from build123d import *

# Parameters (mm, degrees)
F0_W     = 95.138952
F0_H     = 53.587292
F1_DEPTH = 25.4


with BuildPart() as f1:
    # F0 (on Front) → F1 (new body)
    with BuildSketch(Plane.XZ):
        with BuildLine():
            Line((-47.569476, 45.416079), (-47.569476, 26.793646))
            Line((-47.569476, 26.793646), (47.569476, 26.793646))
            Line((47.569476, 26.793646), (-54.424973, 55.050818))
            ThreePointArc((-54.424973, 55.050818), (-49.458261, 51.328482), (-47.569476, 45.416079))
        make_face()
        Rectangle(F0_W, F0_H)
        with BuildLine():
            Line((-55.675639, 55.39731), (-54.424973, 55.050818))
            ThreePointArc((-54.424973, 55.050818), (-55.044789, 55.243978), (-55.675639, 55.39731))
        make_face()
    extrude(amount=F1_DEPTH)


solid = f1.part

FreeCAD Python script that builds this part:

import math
import FreeCAD as App
import Part
import Sketcher
Q = App.Units.Quantity

doc = App.newDocument("Part")
body = doc.addObject("PartDesign::Body", "Body")
body.AllowCompound = True

sketch1 = body.newObject("Sketcher::SketchObject", "Sketch")
sketch1.AttachmentSupport = (doc.getObject("XZ_Plane"), [""])
sketch1.MapMode = "FlatFace"
sketch1.addGeometry([
    Part.LineSegment(App.Vector(-47.569476, 45.416079, 0), App.Vector(-47.569476, -26.793646, 0)),
    Part.LineSegment(App.Vector(-47.569476, -26.793646, 0), App.Vector(47.569476, -26.793646, 0)),
    Part.LineSegment(App.Vector(47.569476, -26.793646, 0), App.Vector(47.569476, 26.793646, 0)),
    Part.LineSegment(App.Vector(47.569476, 26.793646, 0), App.Vector(-54.424973, 55.050818, 0)),
    Part.ArcOfCircle(Part.Circle(App.Vector(-57.767573, 45.416078, 0), App.Vector(0, 0, 1), 10.198097), math.radians(0.000003), math.radians(70.866701)),
    Part.LineSegment(App.Vector(-55.675639, 55.39731, 0), App.Vector(-54.424973, 55.050818, 0)),
    Part.ArcOfCircle(Part.Circle(App.Vector(-57.767658, 45.415757, 0), App.Vector(0, 0, 1), 10.198429), math.radians(70.866841), math.radians(78.162802)),
], False)
sketch1.addConstraint([
    Sketcher.Constraint("Coincident", 0, 2, 1, 1),
    Sketcher.Constraint("Coincident", 1, 2, 2, 1),
    Sketcher.Constraint("Coincident", 2, 2, 3, 1),
    Sketcher.Constraint("Coincident", 3, 2, 4, 2),
    Sketcher.Constraint("Tangent", 4, 1, 0, 1),
    Sketcher.Constraint("Coincident", 5, 1, 6, 2),
    Sketcher.Constraint("Coincident", 6, 1, 5, 2),
    Sketcher.Constraint("Vertical", 0),
    Sketcher.Constraint("Horizontal", 1),
    Sketcher.Constraint("Vertical", 2),
    Sketcher.Constraint("Coincident", 6, 1, 3, 2),
    Sketcher.Constraint("Symmetric", 0, 2, 2, 2, -1, 1),
    Sketcher.Constraint("Parallel", 3, 5),
    Sketcher.Constraint("Radius", 4, Q("0.4014999 in")),
    Sketcher.Constraint("Radius", 6, Q("10.198429 mm")),
    Sketcher.Constraint("DistanceY", 2, 1, 2, 2, Q("53.587292 mm")),
    Sketcher.Constraint("DistanceX", 4, 3, 3, 2, Q("3.3426 mm")),
    Sketcher.Constraint("Distance", 3, Q("105.836361 mm")),
    Sketcher.Constraint("DistanceX", 1, 1, 1, 2, Q("95.138952 mm")),
    Sketcher.Constraint("DistanceX", 6, 3, -1, 1, Q("57.767658 mm")),
])
pad1 = body.newObject("PartDesign::Pad", "Pad")
pad1.Profile = sketch1
pad1.Length = Q("1 in")

doc.recompute()
